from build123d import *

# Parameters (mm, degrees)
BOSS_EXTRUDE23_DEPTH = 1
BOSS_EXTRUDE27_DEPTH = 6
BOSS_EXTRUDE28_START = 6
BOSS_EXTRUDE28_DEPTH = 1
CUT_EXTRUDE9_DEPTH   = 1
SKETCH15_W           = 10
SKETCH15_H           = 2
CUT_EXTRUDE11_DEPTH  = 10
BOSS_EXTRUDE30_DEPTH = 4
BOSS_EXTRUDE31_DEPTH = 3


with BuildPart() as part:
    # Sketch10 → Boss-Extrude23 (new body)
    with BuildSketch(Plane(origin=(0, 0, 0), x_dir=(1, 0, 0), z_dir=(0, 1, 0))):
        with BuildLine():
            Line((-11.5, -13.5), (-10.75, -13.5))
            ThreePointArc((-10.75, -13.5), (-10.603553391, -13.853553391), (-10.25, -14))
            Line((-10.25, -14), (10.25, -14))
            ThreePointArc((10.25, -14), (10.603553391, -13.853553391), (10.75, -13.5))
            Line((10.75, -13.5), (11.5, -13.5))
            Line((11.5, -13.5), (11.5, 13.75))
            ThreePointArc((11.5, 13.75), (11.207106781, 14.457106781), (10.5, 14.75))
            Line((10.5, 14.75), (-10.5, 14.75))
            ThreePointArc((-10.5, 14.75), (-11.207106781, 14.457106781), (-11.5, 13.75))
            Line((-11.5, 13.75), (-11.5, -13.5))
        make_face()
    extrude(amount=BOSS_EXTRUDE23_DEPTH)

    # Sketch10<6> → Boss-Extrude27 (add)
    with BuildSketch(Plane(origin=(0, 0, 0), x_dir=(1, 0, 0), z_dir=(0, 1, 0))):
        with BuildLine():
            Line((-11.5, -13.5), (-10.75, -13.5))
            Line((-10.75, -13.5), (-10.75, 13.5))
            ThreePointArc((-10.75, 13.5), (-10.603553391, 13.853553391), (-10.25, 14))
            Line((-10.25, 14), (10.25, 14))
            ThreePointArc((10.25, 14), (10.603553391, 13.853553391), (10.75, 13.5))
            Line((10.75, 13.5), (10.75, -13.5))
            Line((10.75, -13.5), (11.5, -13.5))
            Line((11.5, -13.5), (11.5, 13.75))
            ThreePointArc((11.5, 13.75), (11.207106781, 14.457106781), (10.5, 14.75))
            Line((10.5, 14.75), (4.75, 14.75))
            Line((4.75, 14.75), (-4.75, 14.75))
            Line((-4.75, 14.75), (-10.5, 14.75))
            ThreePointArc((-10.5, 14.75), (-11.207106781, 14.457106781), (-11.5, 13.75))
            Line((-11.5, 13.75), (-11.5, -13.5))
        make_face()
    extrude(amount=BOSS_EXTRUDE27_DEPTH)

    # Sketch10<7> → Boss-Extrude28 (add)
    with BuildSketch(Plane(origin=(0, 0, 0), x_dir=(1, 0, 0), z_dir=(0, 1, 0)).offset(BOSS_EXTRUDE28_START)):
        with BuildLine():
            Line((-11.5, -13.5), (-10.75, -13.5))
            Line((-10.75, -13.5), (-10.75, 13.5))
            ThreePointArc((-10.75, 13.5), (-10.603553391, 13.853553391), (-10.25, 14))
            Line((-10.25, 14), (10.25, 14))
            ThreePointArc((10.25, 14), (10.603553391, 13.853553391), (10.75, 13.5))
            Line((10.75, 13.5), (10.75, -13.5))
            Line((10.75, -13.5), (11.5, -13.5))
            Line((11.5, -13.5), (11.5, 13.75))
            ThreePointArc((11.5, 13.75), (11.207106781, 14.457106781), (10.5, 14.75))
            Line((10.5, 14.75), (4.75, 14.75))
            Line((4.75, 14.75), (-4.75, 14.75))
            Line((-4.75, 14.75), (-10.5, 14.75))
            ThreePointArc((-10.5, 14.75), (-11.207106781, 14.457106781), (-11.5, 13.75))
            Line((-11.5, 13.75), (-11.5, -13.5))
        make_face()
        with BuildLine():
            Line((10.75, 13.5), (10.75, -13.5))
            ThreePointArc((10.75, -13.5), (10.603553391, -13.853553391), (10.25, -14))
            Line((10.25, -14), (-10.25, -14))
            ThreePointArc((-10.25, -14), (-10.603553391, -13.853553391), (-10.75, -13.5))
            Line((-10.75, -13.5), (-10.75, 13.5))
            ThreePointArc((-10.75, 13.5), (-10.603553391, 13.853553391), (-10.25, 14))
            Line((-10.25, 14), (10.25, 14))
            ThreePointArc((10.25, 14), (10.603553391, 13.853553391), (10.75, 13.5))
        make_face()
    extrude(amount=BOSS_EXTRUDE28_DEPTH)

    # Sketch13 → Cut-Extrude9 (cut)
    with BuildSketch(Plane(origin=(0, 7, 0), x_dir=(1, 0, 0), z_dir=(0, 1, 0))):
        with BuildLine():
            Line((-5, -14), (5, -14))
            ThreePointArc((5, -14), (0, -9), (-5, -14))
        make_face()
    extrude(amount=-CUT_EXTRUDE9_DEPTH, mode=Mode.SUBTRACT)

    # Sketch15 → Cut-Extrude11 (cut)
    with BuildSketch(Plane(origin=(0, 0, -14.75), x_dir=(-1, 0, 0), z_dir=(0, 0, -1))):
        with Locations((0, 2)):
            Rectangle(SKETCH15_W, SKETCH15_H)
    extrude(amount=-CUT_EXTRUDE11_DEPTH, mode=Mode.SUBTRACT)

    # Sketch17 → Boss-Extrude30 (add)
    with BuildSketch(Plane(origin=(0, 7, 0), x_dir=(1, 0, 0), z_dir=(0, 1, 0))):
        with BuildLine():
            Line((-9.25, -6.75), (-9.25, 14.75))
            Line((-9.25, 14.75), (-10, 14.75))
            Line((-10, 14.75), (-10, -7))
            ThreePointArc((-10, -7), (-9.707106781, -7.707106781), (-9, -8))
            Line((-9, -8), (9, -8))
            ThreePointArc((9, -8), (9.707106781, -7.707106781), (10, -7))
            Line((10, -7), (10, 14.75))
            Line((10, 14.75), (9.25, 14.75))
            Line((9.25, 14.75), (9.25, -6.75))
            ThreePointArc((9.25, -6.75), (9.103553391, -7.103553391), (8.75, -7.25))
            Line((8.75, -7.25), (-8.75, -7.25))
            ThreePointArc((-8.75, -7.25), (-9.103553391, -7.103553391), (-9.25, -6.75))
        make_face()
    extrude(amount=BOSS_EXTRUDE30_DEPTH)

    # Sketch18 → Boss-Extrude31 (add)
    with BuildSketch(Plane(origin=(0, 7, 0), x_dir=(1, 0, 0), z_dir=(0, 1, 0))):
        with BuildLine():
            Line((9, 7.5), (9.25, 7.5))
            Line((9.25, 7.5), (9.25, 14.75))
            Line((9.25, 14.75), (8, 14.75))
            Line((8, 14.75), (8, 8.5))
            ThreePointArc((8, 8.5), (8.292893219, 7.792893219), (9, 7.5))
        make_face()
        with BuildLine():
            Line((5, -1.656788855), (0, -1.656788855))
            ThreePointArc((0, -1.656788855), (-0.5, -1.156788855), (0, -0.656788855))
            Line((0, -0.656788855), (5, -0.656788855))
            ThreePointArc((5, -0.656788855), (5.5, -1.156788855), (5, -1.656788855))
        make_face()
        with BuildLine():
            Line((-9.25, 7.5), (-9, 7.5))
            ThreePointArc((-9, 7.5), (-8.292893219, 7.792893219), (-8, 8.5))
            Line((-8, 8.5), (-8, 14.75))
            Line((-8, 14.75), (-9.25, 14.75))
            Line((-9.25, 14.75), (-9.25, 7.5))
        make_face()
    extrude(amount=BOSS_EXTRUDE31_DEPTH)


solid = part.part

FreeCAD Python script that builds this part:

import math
import FreeCAD as App
import Part
import Sketcher
from FreeCAD import Vector
Q = App.Units.Quantity


def add_polygon(sketch, points):
    """Adds a closed chain of lines whose ends are joined by coincident constraints."""
    first, n = sketch.GeometryCount, len(points)
    for a, b in zip(points, points[1:] + points[:1]):
        sketch.addGeometry(Part.LineSegment(App.Vector(*a, 0), App.Vector(*b, 0)), False)
    for i in range(n):
        sketch.addConstraint(Sketcher.Constraint("Coincident", first + i, 2, first + (i + 1) % n, 1))

doc = App.newDocument("Part")
body = doc.addObject("PartDesign::Body", "Body")

sketch1 = body.newObject("Sketcher::SketchObject", "Sketch")
sketch1.AttachmentSupport = (doc.getObject("XZ_Plane"), [""])
sketch1.MapMode = "FlatFace"
sketch1.addGeometry([
    Part.LineSegment(Vector(-11.5, 13.5, 0), Vector(-10.75, 13.5, 0)),
    Part.ArcOfCircle(Part.Circle(Vector(-10.25, 13.5, 0), Vector(0, 0, 1), 0.5), math.radians(90), math.radians(180)),
    Part.LineSegment(Vector(-10.25, 14, 0), Vector(10.25, 14, 0)),
    Part.ArcOfCircle(Part.Circle(Vector(10.25, 13.5, 0), Vector(0, 0, 1), 0.5), math.radians(0), math.radians(90)),
    Part.LineSegment(Vector(10.75, 13.5, 0), Vector(11.5, 13.5, 0)),
    Part.LineSegment(Vector(11.5, 13.5, 0), Vector(11.5, -13.75, 0)),
    Part.ArcOfCircle(Part.Circle(Vector(10.5, -13.75, 0), Vector(0, 0, 1), 1), math.radians(-90), math.radians(0)),
    Part.LineSegment(Vector(10.5, -14.75, 0), Vector(-10.5, -14.75, 0)),
    Part.ArcOfCircle(Part.Circle(Vector(-10.5, -13.75, 0), Vector(0, 0, 1), 1), math.radians(-180), math.radians(-90)),
    Part.LineSegment(Vector(-11.5, -13.75, 0), Vector(-11.5, 13.5, 0)),
], False)
sketch1.addConstraint([
    Sketcher.Constraint("Coincident", 0, 2, 1, 2),
    Sketcher.Constraint("Tangent", 1, 1, 2, 1),
    Sketcher.Constraint("Tangent", 2, 2, 3, 2),
    Sketcher.Constraint("Coincident", 3, 1, 4, 1),
    Sketcher.Constraint("Coincident", 4, 2, 5, 1),
    Sketcher.Constraint("Tangent", 5, 2, 6, 2),
    Sketcher.Constraint("Tangent", 6, 1, 7, 1),
    Sketcher.Constraint("Tangent", 7, 2, 8, 2),
    Sketcher.Constraint("Tangent", 8, 1, 9, 1),
    Sketcher.Constraint("Coincident", 9, 2, 0, 1),
    Sketcher.Constraint("Horizontal", 0),
    Sketcher.Constraint("Horizontal", 2),
    Sketcher.Constraint("Horizontal", 4),
    Sketcher.Constraint("Vertical", 5),
    Sketcher.Constraint("Horizontal", 7),
    Sketcher.Constraint("Vertical", 9),
    Sketcher.Constraint("Equal", 1, 3),
    Sketcher.Constraint("Equal", 6, 8),
    Sketcher.Constraint("Symmetric", 0, 2, 3, 1, -2),
    Sketcher.Constraint("Horizontal", 3, 3, 0, 2),
    Sketcher.Constraint("Equal", 0, 4),
    Sketcher.Constraint("Radius", 6, Q("1 mm")),
    Sketcher.Constraint("Radius", 1, Q("0.5 mm")),
    Sketcher.Constraint("DistanceX", 7, 2, 7, 1, Q("21 mm")),
    Sketcher.Constraint("DistanceX", 2, 1, 2, 2, Q("20.5 mm")),
    Sketcher.Constraint("DistanceY", -1, 1, 1, 1, Q("14 mm")),
    Sketcher.Constraint("DistanceY", 5, 2, 5, 1, Q("27.25 mm")),
])
pad1 = body.newObject("PartDesign::Pad", "Pad")
pad1.Profile = sketch1
pad1.Length = 1
pad1.Reversed = True

sketch2 = body.newObject("Sketcher::SketchObject", "Sketch001")
sketch2.AttachmentSupport = (doc.getObject("XZ_Plane"), [""])
sketch2.MapMode = "FlatFace"
sketch2.addGeometry([
    Part.LineSegment(Vector(-11.5, 13.5, 0), Vector(-10.75, 13.5, 0)),
    Part.LineSegment(Vector(-10.75, 13.5, 0), Vector(-10.75, -13.5, 0)),
    Part.ArcOfCircle(Part.Circle(Vector(-10.25, -13.5, 0), Vector(0, 0, 1), 0.5), math.radians(180), math.radians(270)),
    Part.LineSegment(Vector(-10.25, -14, 0), Vector(10.25, -14, 0)),
    Part.ArcOfCircle(Part.Circle(Vector(10.25, -13.5, 0), Vector(0, 0, 1), 0.5), math.radians(-90), math.radians(0)),
    Part.LineSegment(Vector(10.75, -13.5, 0), Vector(10.75, 13.5, 0)),
    Part.LineSegment(Vector(10.75, 13.5, 0), Vector(11.5, 13.5, 0)),
    Part.LineSegment(Vector(11.5, 13.5, 0), Vector(11.5, -13.75, 0)),
    Part.ArcOfCircle(Part.Circle(Vector(10.5, -13.75, 0), Vector(0, 0, 1), 1), math.radians(-90), math.radians(0)),
    Part.LineSegment(Vector(10.5, -14.75, 0), Vector(-10.5, -14.75, 0)),
    Part.ArcOfCircle(Part.Circle(Vector(-10.5, -13.75, 0), Vector(0, 0, 1), 1), math.radians(-180), math.radians(-90)),
    Part.LineSegment(Vector(-11.5, -13.75, 0), Vector(-11.5, 13.5, 0)),
], False)
sketch2.addConstraint([
    Sketcher.Constraint("Coincident", 0, 2, 1, 1),
    Sketcher.Constraint("Tangent", 1, 2, 2, 1),
    Sketcher.Constraint("Tangent", 2, 2, 3, 1),
    Sketcher.Constraint("Tangent", 3, 2, 4, 1),
    Sketcher.Constraint("Tangent", 4, 2, 5, 1),
    Sketcher.Constraint("Coincident", 5, 2, 6, 1),
    Sketcher.Constraint("Coincident", 6, 2, 7, 1),
    Sketcher.Constraint("Tangent", 7, 2, 8, 2),
    Sketcher.Constraint("Tangent", 8, 1, 9, 1),
    Sketcher.Constraint("Tangent", 9, 2, 10, 2),
    Sketcher.Constraint("Tangent", 10, 1, 11, 1),
    Sketcher.Constraint("Coincident", 11, 2, 0, 1),
    Sketcher.Constraint("Horizontal", 0),
    Sketcher.Constraint("Vertical", 1),
    Sketcher.Constraint("Horizontal", 3),
    Sketcher.Constraint("Vertical", 5),
    Sketcher.Constraint("Horizontal", 6),
    Sketcher.Constraint("Vertical", 7),
    Sketcher.Constraint("Horizontal", 9),
    Sketcher.Constraint("Vertical", 11),
    Sketcher.Constraint("Equal", 2, 4),
    Sketcher.Constraint("Equal", 8, 10),
    Sketcher.Constraint("Symmetric", 0, 2, 4, 2, -1, 1),
    Sketcher.Constraint("Symmetric", 6, 2, 11, 2, -2),
    Sketcher.Constraint("Radius", 8, Q("1 mm")),
    Sketcher.Constraint("Radius", 2, Q("0.5 mm")),
    Sketcher.Constraint("DistanceX", 9, 2, 9, 1, Q("21 mm")),
    Sketcher.Constraint("DistanceY", 1, 2, 1, 1, Q("27 mm")),
    Sketcher.Constraint("DistanceX", 3, 1, 3, 2, Q("20.5 mm")),
    Sketcher.Constraint("DistanceY", 7, 2, 7, 1, Q("27.25 mm")),
])
pad2 = body.newObject("PartDesign::Pad", "Pad001")
pad2.Profile = sketch2
pad2.Length = 6
pad2.Reversed = True

sketch3 = body.newObject("Sketcher::SketchObject", "Sketch002")
sketch3.AttachmentSupport = (doc.getObject("XZ_Plane"), [""])
sketch3.MapMode = "FlatFace"
sketch3.AttachmentOffset = App.Placement(Vector(0, 0, -6), App.Rotation())
sketch3.addGeometry([
    Part.LineSegment(Vector(-11.5, 13.5, 0), Vector(-10.75, 13.5, 0)),
    Part.ArcOfCircle(Part.Circle(Vector(-10.25, 13.5, 0), Vector(0, 0, 1), 0.5), math.radians(90), math.radians(180)),
    Part.LineSegment(Vector(-10.25, 14, 0), Vector(10.25, 14, 0)),
    Part.ArcOfCircle(Part.Circle(Vector(10.25, 13.5, 0), Vector(0, 0, 1), 0.5), math.radians(0), math.radians(90)),
    Part.LineSegment(Vector(10.75, 13.5, 0), Vector(11.5, 13.5, 0)),
    Part.LineSegment(Vector(11.5, 13.5, 0), Vector(11.5, -13.75, 0)),
    Part.ArcOfCircle(Part.Circle(Vector(10.5, -13.75, 0), Vector(0, 0, 1), 1), math.radians(-90), math.radians(0)),
    Part.LineSegment(Vector(10.5, -14.75, 0), Vector(-10.5, -14.75, 0)),
    Part.ArcOfCircle(Part.Circle(Vector(-10.5, -13.75, 0), Vector(0, 0, 1), 1), math.radians(-180), math.radians(-90)),
    Part.LineSegment(Vector(-11.5, -13.75, 0), Vector(-11.5, 13.5, 0)),
], False)
sketch3.addConstraint([
    Sketcher.Constraint("Coincident", 0, 2, 1, 2),
    Sketcher.Constraint("Tangent", 1, 1, 2, 1),
    Sketcher.Constraint("Tangent", 2, 2, 3, 2),
    Sketcher.Constraint("Coincident", 3, 1, 4, 1),
    Sketcher.Constraint("Coincident", 4, 2, 5, 1),
    Sketcher.Constraint("Tangent", 5, 2, 6, 2),
    Sketcher.Constraint("Tangent", 6, 1, 7, 1),
    Sketcher.Constraint("Tangent", 7, 2, 8, 2),
    Sketcher.Constraint("Tangent", 8, 1, 9, 1),
    Sketcher.Constraint("Coincident", 9, 2, 0, 1),
    Sketcher.Constraint("Horizontal", 0),
    Sketcher.Constraint("Horizontal", 2),
    Sketcher.Constraint("Horizontal", 4),
    Sketcher.Constraint("Vertical", 5),
    Sketcher.Constraint("Horizontal", 7),
    Sketcher.Constraint("Vertical", 9),
    Sketcher.Constraint("Equal", 1, 3),
    Sketcher.Constraint("Equal", 6, 8),
    Sketcher.Constraint("Symmetric", 0, 2, 3, 1, -2),
    Sketcher.Constraint("Horizontal", 3, 3, 0, 2),
    Sketcher.Constraint("Equal", 0, 4),
    Sketcher.Constraint("Radius", 6, Q("1 mm")),
    Sketcher.Constraint("Radius", 1, Q("0.5 mm")),
    Sketcher.Constraint("DistanceX", 7, 2, 7, 1, Q("21 mm")),
    Sketcher.Constraint("DistanceX", 2, 1, 2, 2, Q("20.5 mm")),
    Sketcher.Constraint("DistanceY", -1, 1, 1, 1, Q("14 mm")),
    Sketcher.Constraint("DistanceY", 5, 2, 5, 1, Q("27.25 mm")),
])
pad3 = body.newObject("PartDesign::Pad", "Pad002")
pad3.Profile = sketch3
pad3.Length = 1
pad3.Reversed = True

sketch4 = body.newObject("Sketcher::SketchObject", "Sketch003")
sketch4.AttachmentSupport = (doc.getObject("XZ_Plane"), [""])
sketch4.MapMode = "FlatFace"
sketch4.AttachmentOffset = App.Placement(Vector(0, 0, -7), App.Rotation())
sketch4.addGeometry([
    Part.LineSegment(Vector(-5, 14, 0), Vector(5, 14, 0)),
    Part.ArcOfCircle(Part.Circle(Vector(0, 14, 0), Vector(0, 0, 1), 5), math.radians(180), math.radians(360)),
], False)
sketch4.addConstraint([
    Sketcher.Constraint("Coincident", 0, 1, 1, 1),
    Sketcher.Constraint("Coincident", 1, 2, 0, 2),
    Sketcher.Constraint("Horizontal", 0),
    Sketcher.Constraint("PointOnObject", 1, 3, -2),
    Sketcher.Constraint("Horizontal", 1, 3, 0, 1),
    Sketcher.Constraint("Radius", 1, Q("5 mm")),
    Sketcher.Constraint("DistanceY", -1, 1, 1, 3, Q("14 mm")),
])
pocket1 = body.newObject("PartDesign::Pocket", "Pocket")
pocket1.Profile = sketch4
pocket1.Length = 1
pocket1.Reversed = True

sketch5 = body.newObject("Sketcher::SketchObject", "Sketch004")
sketch5.AttachmentSupport = (doc.getObject("XY_Plane"), [""])
sketch5.MapMode = "FlatFace"
sketch5.AttachmentOffset = App.Placement(Vector(0, 0, -14.75), App.Rotation())
add_polygon(sketch5, [(5, 3), (5, 1), (-5, 1), (-5, 3)])
sketch5.addConstraint([
    Sketcher.Constraint("Vertical", 0),
    Sketcher.Constraint("Horizontal", 1),
    Sketcher.Constraint("Vertical", 2),
    Sketcher.Constraint("Horizontal", 3),
    Sketcher.Constraint("DistanceX", 1, 2, 1, 1, Q("10 mm")),
    Sketcher.Constraint("DistanceY", 0, 2, 0, 1, Q("2 mm")),
    Sketcher.Constraint("DistanceX", -1, 1, 0, 2, Q("5 mm")),
    Sketcher.Constraint("DistanceY", -1, 1, 0, 2, Q("1 mm")),
])
pocket2 = body.newObject("PartDesign::Pocket", "Pocket001")
pocket2.Profile = sketch5
pocket2.Length = 10
pocket2.Reversed = True

sketch6 = body.newObject("Sketcher::SketchObject", "Sketch005")
sketch6.AttachmentSupport = (doc.getObject("XZ_Plane"), [""])
sketch6.MapMode = "FlatFace"
sketch6.AttachmentOffset = App.Placement(Vector(0, 0, -7), App.Rotation())
sketch6.addGeometry([
    Part.LineSegment(Vector(-9.25, 6.75, 0), Vector(-9.25, -14.75, 0)),
    Part.LineSegment(Vector(-9.25, -14.75, 0), Vector(-10, -14.75, 0)),
    Part.LineSegment(Vector(-10, -14.75, 0), Vector(-10, 7, 0)),
    Part.ArcOfCircle(Part.Circle(Vector(-9, 7, 0), Vector(0, 0, 1), 1), math.radians(90), math.radians(180)),
    Part.LineSegment(Vector(-9, 8, 0), Vector(9, 8, 0)),
    Part.ArcOfCircle(Part.Circle(Vector(9, 7, 0), Vector(0, 0, 1), 1), math.radians(0), math.radians(90)),
    Part.LineSegment(Vector(10, 7, 0), Vector(10, -14.75, 0)),
    Part.LineSegment(Vector(10, -14.75, 0), Vector(9.25, -14.75, 0)),
    Part.LineSegment(Vector(9.25, -14.75, 0), Vector(9.25, 6.75, 0)),
    Part.ArcOfCircle(Part.Circle(Vector(8.75, 6.75, 0), Vector(0, 0, 1), 0.5), math.radians(0), math.radians(90)),
    Part.LineSegment(Vector(8.75, 7.25, 0), Vector(-8.75, 7.25, 0)),
    Part.ArcOfCircle(Part.Circle(Vector(-8.75, 6.75, 0), Vector(0, 0, 1), 0.5), math.radians(90), math.radians(180)),
], False)
sketch6.addConstraint([
    Sketcher.Constraint("Coincident", 0, 2, 1, 1),
    Sketcher.Constraint("Coincident", 1, 2, 2, 1),
    Sketcher.Constraint("Tangent", 2, 2, 3, 2),
    Sketcher.Constraint("Tangent", 3, 1, 4, 1),
    Sketcher.Constraint("Tangent", 4, 2, 5, 2),
    Sketcher.Constraint("Tangent", 5, 1, 6, 1),
    Sketcher.Constraint("Coincident", 6, 2, 7, 1),
    Sketcher.Constraint("Coincident", 7, 2, 8, 1),
    Sketcher.Constraint("Tangent", 8, 2, 9, 1),
    Sketcher.Constraint("Tangent", 9, 2, 10, 1),
    Sketcher.Constraint("Tangent", 10, 2, 11, 1),
    Sketcher.Constraint("Tangent", 11, 2, 0, 1),
    Sketcher.Constraint("Vertical", 0),
    Sketcher.Constraint("Horizontal", 1),
    Sketcher.Constraint("Vertical", 2),
    Sketcher.Constraint("Horizontal", 4),
    Sketcher.Constraint("Vertical", 6),
    Sketcher.Constraint("Horizontal", 7),
    Sketcher.Constraint("Vertical", 8),
    Sketcher.Constraint("Horizontal", 10),
    Sketcher.Constraint("Equal", 3, 5),
    Sketcher.Constraint("Equal", 9, 11),
    Sketcher.Constraint("Symmetric", 1, 2, 6, 2, -2),
    Sketcher.Constraint("Equal", 1, 7),
    Sketcher.Constraint("Radius", 3, Q("1 mm")),
    Sketcher.Constraint("Radius", 9, Q("0.5 mm")),
    Sketcher.Constraint("DistanceX", 4, 1, 4, 2, Q("18 mm")),
    Sketcher.Constraint("DistanceX", 10, 2, 10, 1, Q("17.5 mm")),
    Sketcher.Constraint("DistanceY", 0, 2, 0, 1, Q("21.5 mm")),
    Sketcher.Constraint("DistanceY", -1, 1, 3, 3, Q("7 mm")),
    Sketcher.Constraint("DistanceY", 2, 1, 2, 2, Q("21.75 mm")),
])
pad4 = body.newObject("PartDesign::Pad", "Pad003")
pad4.Profile = sketch6
pad4.Length = 4
pad4.Reversed = True

sketch7 = body.newObject("Sketcher::SketchObject", "Sketch006")
sketch7.AttachmentSupport = (doc.getObject("XZ_Plane"), [""])
sketch7.MapMode = "FlatFace"
sketch7.AttachmentOffset = App.Placement(Vector(0, 0, -7), App.Rotation())
sketch7.addGeometry([
    Part.LineSegment(Vector(9, -7.5, 0), Vector(9.25, -7.5, 0)),
    Part.LineSegment(Vector(9.25, -7.5, 0), Vector(9.25, -14.75, 0)),
    Part.LineSegment(Vector(9.25, -14.75, 0), Vector(8, -14.75, 0)),
    Part.LineSegment(Vector(8, -14.75, 0), Vector(8, -8.5, 0)),
    Part.ArcOfCircle(Part.Circle(Vector(9, -8.5, 0), Vector(0, 0, 1), 1), math.radians(90), math.radians(180)),
    Part.LineSegment(Vector(0, 1.66, 0), Vector(5, 1.66, 0)),
    Part.ArcOfCircle(Part.Circle(Vector(5, 1.16, 0), Vector(0, 0, 1), 0.5), math.radians(-90), math.radians(90)),
    Part.LineSegment(Vector(5, 0.66, 0), Vector(0, 0.66, 0)),
    Part.ArcOfCircle(Part.Circle(Vector(0, 1.16, 0), Vector(0, 0, 1), 0.5), math.radians(90), math.radians(270)),
    Part.LineSegment(Vector(-9.25, -7.5, 0), Vector(-9, -7.5, 0)),
    Part.ArcOfCircle(Part.Circle(Vector(-9, -8.5, 0), Vector(0, 0, 1), 1), math.radians(0), math.radians(90)),
    Part.LineSegment(Vector(-8, -8.5, 0), Vector(-8, -14.75, 0)),
    Part.LineSegment(Vector(-8, -14.75, 0), Vector(-9.25, -14.75, 0)),
    Part.LineSegment(Vector(-9.25, -14.75, 0), Vector(-9.25, -7.5, 0)),
], False)
sketch7.addConstraint([
    Sketcher.Constraint("Coincident", 0, 2, 1, 1),
    Sketcher.Constraint("Coincident", 1, 2, 2, 1),
    Sketcher.Constraint("Coincident", 2, 2, 3, 1),
    Sketcher.Constraint("Tangent", 3, 2, 4, 2),
    Sketcher.Constraint("Tangent", 4, 1, 0, 1),
    Sketcher.Constraint("Tangent", 5, 2, 6, 2),
    Sketcher.Constraint("Tangent", 6, 1, 7, 1),
    Sketcher.Constraint("Tangent", 7, 2, 8, 2),
    Sketcher.Constraint("Tangent", 8, 1, 5, 1),
    Sketcher.Constraint("Tangent", 9, 2, 10, 2),
    Sketcher.Constraint("Tangent", 10, 1, 11, 1),
    Sketcher.Constraint("Coincident", 11, 2, 12, 1),
    Sketcher.Constraint("Coincident", 12, 2, 13, 1),
    Sketcher.Constraint("Coincident", 13, 2, 9, 1),
    Sketcher.Constraint("Horizontal", 0),
    Sketcher.Constraint("Vertical", 1),
    Sketcher.Constraint("Horizontal", 2),
    Sketcher.Constraint("Vertical", 3),
    Sketcher.Constraint("Horizontal", 5),
    Sketcher.Constraint("Horizontal", 7),
    Sketcher.Constraint("Horizontal", 9),
    Sketcher.Constraint("Vertical", 11),
    Sketcher.Constraint("Horizontal", 12),
    Sketcher.Constraint("Vertical", 13),
    Sketcher.Constraint("Equal", 4, 10),
    Sketcher.Constraint("Symmetric", 4, 3, 10, 3, -2),
    Sketcher.Constraint("Symmetric", 1, 2, 12, 2, -2),
    Sketcher.Constraint("PointOnObject", 8, 3, -2),
    Sketcher.Constraint("Radius", 4, Q("1 mm")),
    Sketcher.Constraint("Radius", 6, Q("0.5 mm")),
    Sketcher.Constraint("DistanceX", 5, 1, 5, 2, Q("5 mm")),
    Sketcher.Constraint("DistanceX", -1, 1, 4, 3, Q("9 mm")),
    Sketcher.Constraint("DistanceX", 0, 1, 0, 2, Q("0.25 mm")),
    Sketcher.Constraint("DistanceY", 1, 2, 1, 1, Q("7.25 mm")),
    Sketcher.Constraint("DistanceY", 4, 3, -1, 1, Q("8.5 mm")),
    Sketcher.Constraint("DistanceY", -1, 1, 6, 3, Q("1.156789 mm")),
])
pad5 = body.newObject("PartDesign::Pad", "Pad004")
pad5.Profile = sketch7
pad5.Length = 3
pad5.Reversed = True

doc.recompute()
